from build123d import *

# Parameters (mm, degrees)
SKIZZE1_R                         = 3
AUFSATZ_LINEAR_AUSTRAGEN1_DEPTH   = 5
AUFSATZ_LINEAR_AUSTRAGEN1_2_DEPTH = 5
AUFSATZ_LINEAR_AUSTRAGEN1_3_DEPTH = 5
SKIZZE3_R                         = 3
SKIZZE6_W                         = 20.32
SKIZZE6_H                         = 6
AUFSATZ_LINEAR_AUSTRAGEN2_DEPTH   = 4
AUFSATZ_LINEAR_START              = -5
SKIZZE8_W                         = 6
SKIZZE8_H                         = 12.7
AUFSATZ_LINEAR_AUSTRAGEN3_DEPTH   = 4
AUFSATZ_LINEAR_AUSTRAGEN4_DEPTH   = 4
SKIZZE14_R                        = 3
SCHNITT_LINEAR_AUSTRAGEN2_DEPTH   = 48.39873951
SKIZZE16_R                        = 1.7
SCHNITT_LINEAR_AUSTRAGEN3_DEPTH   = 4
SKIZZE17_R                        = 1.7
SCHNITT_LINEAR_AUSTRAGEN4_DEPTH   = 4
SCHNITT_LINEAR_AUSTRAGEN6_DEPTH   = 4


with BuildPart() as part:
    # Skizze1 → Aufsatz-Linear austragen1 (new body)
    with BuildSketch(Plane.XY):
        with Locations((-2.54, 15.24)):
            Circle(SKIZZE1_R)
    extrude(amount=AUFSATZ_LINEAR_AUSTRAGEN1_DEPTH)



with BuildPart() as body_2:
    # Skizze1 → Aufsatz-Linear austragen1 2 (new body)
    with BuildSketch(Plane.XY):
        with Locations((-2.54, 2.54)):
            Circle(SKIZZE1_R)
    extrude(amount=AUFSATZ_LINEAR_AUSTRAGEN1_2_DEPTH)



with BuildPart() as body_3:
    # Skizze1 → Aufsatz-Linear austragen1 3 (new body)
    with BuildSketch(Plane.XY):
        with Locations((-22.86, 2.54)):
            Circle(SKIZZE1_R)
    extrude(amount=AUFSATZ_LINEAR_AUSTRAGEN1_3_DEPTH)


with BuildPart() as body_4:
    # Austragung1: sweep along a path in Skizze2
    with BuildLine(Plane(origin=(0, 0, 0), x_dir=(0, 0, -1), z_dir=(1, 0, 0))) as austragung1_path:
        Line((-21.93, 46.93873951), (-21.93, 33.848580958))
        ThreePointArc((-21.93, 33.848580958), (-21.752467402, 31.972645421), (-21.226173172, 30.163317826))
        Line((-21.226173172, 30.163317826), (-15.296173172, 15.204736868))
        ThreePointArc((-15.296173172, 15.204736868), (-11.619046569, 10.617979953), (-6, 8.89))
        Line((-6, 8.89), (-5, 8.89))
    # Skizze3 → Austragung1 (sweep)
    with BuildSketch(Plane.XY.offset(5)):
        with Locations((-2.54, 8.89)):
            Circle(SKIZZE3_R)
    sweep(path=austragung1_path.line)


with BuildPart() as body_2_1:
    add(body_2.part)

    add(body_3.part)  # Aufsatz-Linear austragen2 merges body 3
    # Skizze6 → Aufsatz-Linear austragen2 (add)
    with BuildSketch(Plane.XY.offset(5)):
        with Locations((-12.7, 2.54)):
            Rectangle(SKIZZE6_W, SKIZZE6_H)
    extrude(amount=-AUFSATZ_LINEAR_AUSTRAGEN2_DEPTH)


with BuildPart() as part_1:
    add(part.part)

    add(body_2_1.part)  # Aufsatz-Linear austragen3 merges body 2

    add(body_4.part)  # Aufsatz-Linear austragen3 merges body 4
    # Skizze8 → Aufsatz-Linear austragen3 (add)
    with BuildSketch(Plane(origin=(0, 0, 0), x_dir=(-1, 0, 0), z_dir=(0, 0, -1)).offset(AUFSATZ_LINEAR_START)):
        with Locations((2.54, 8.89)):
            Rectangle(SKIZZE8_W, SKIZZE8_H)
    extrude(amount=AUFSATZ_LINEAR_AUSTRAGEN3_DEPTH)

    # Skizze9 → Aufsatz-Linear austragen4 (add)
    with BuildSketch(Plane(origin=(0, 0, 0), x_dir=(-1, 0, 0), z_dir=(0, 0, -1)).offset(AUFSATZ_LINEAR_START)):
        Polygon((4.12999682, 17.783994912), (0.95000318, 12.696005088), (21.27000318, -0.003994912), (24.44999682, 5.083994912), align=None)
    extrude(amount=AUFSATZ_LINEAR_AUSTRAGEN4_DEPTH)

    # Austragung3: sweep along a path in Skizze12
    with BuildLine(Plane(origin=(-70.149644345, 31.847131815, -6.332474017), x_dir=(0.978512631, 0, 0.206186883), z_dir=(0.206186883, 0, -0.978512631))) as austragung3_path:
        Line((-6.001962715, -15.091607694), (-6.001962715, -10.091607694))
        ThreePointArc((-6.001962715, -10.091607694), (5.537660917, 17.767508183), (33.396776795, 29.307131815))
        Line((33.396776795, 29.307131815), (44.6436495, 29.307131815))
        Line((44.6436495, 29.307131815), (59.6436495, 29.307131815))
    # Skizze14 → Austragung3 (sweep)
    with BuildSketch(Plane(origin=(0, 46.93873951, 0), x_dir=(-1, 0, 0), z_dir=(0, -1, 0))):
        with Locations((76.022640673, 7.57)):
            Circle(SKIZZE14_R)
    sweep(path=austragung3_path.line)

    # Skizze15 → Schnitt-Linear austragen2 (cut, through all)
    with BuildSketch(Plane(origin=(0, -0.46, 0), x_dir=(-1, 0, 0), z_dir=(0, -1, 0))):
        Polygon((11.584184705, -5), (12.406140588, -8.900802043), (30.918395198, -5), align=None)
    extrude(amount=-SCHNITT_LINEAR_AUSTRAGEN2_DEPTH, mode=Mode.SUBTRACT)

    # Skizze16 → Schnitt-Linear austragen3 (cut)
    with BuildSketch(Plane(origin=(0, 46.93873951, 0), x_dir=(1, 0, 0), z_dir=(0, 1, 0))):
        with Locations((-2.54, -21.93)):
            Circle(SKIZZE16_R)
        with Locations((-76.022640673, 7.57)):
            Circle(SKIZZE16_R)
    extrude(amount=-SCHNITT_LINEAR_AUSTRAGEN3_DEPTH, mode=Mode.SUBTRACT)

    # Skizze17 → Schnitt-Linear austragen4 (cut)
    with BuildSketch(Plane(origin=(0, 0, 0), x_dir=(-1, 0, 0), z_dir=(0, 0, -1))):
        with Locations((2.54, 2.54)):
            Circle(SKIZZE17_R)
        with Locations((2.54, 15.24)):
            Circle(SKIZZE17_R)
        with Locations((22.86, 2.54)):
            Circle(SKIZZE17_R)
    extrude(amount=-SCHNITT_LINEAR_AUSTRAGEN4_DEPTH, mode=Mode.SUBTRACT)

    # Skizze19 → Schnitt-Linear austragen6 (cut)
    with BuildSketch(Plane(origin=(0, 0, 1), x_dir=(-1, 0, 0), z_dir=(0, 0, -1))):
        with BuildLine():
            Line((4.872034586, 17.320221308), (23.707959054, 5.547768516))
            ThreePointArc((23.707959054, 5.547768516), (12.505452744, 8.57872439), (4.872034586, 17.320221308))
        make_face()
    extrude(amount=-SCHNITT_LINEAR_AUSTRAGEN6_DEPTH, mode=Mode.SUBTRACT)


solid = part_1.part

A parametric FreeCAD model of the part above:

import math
import FreeCAD as App
import Part
import Sketcher
from FreeCAD import Vector

doc = App.newDocument("Part")
params = doc.addObject("Spreadsheet::Sheet", "Params")
for row, (alias, value) in enumerate([
    ("sketch1_diameter", "6 mm"),
    ("pad1_length", "5 mm"),
    ("sketch2_diameter", "6 mm"),
    ("pad2_length", "5 mm"),
    ("sketch3_diameter", "6 mm"),
    ("pad3_length", "5 mm"),
    ("sketch4_diameter", "6 mm"),
    ("sketch5_radius", "10 mm"),
    ("sketch5_height", "1 mm"),
    ("sketch6_height", "6 mm"),
    ("sketch6_width", "20.32 mm"),
    ("pad4_length", "4 mm"),
    ("sketch7_width", "6 mm"),
    ("sketch7_height", "12.7 mm"),
    ("pad5_length", "4 mm"),
    ("sketch8_length", "6 mm"),
    ("pad6_length", "4 mm"),
    ("sketch9_diameter", "6 mm"),
    ("sketch10_height", "5 mm"),
    ("sketch12_diameter", "3.4 mm"),
    ("pocket2_length", "4 mm"),
    ("sketch13_diameter", "3.4 mm"),
    ("pocket3_length", "4 mm"),
    ("sketch14_radius", "20 mm"),
    ("pocket4_length", "4 mm"),
], start=1):
    params.set(f"A{row}", alias)
    params.set(f"B{row}", "=" + value)
    params.setAlias(f"B{row}", alias)

body = doc.addObject("PartDesign::Body", "Body")

sketch1 = body.newObject("Sketcher::SketchObject", "Sketch")
sketch1.AttachmentSupport = (doc.getObject("XY_Plane"), [""])
sketch1.MapMode = "FlatFace"
sketch1.addGeometry(Part.Circle(Vector(-2.54, 15.24, 0), Vector(0, 0, 1), 3), False)
sketch1.addConstraint([
    Sketcher.Constraint("Diameter", 0, 6.0),
    Sketcher.Constraint("DistanceX", 0, 3, -1, 1, 2.54),
    Sketcher.Constraint("DistanceY", -1, 1, 0, 3, 15.24),
])
sketch1.setExpression("Constraints[0]", "Params.sketch1_diameter")
pad1 = body.newObject("PartDesign::Pad", "Pad")
pad1.Profile = sketch1
pad1.setExpression("Length", "Params.pad1_length")
body2 = doc.addObject("PartDesign::Body", "Body001")

sketch2 = body2.newObject("Sketcher::SketchObject", "Sketch001")
sketch2.AttachmentSupport = (doc.getObject("XY_Plane001"), [""])
sketch2.MapMode = "FlatFace"
sketch2.addGeometry(Part.Circle(Vector(-2.54, 2.54, 0), Vector(0, 0, 1), 3), False)
sketch2.addConstraint([
    Sketcher.Constraint("Diameter", 0, 6.0),
    Sketcher.Constraint("DistanceX", 0, 3, -1, 1, 2.54),
    Sketcher.Constraint("DistanceY", -1, 1, 0, 3, 2.54),
])
sketch2.setExpression("Constraints[0]", "Params.sketch2_diameter")
pad2 = body2.newObject("PartDesign::Pad", "Pad001")
pad2.Profile = sketch2
pad2.setExpression("Length", "Params.pad2_length")
body3 = doc.addObject("PartDesign::Body", "Body002")

sketch3 = body3.newObject("Sketcher::SketchObject", "Sketch002")
sketch3.AttachmentSupport = (doc.getObject("XY_Plane002"), [""])
sketch3.MapMode = "FlatFace"
sketch3.addGeometry(Part.Circle(Vector(-22.86, 2.54, 0), Vector(0, 0, 1), 3), False)
sketch3.addConstraint([
    Sketcher.Constraint("Diameter", 0, 6.0),
    Sketcher.Constraint("DistanceX", 0, 3, -1, 1, 22.86),
    Sketcher.Constraint("DistanceY", -1, 1, 0, 3, 2.54),
])
sketch3.setExpression("Constraints[0]", "Params.sketch3_diameter")
pad3 = body3.newObject("PartDesign::Pad", "Pad002")
pad3.Profile = sketch3
pad3.setExpression("Length", "Params.pad3_length")
body4 = doc.addObject("PartDesign::Body", "Body003")

sketch4 = body4.newObject("Sketcher::SketchObject", "Sketch003")
sketch4.AttachmentSupport = (doc.getObject("XY_Plane003"), [""])
sketch4.MapMode = "FlatFace"
sketch4.AttachmentOffset = App.Placement(Vector(0, 0, 5), App.Rotation())
sketch4.addGeometry(Part.Circle(Vector(-2.54, 8.89, 0), Vector(0, 0, 1), 3), False)
sketch4.addConstraint([
    Sketcher.Constraint("Diameter", 0, 6.0),
    Sketcher.Constraint("DistanceX", 0, 3, -1, 1, 2.54),
    Sketcher.Constraint("DistanceY", -1, 1, 0, 3, 8.89),
])
sketch4.setExpression("Constraints[0]", "Params.sketch4_diameter")

sketch5 = body4.newObject("Sketcher::SketchObject", "Sketch004")
sketch5.AttachmentSupport = (doc.getObject("YZ_Plane003"), [""])
sketch5.MapMode = "FlatFace"
sketch5.addGeometry([
    Part.LineSegment(Vector(46.93874, 21.93, 0), Vector(33.848581, 21.93, 0)),
    Part.ArcOfCircle(Part.Circle(Vector(33.848581, 11.93, 0), Vector(0, 0, 1), 10), math.radians(90), math.radians(111.62476)),
    Part.LineSegment(Vector(30.163318, 21.226173, 0), Vector(15.204737, 15.296173, 0)),
    Part.ArcOfCircle(Part.Circle(Vector(18.89, 6, 0), Vector(0, 0, 1), 10), math.radians(111.62476), math.radians(180)),
    Part.LineSegment(Vector(8.89, 6, 0), Vector(8.89, 5, 0)),
], False)
sketch5.addConstraint([
    Sketcher.Constraint("Tangent", 0, 2, 1, 1),
    Sketcher.Constraint("Tangent", 1, 2, 2, 1),
    Sketcher.Constraint("Tangent", 2, 2, 3, 1),
    Sketcher.Constraint("Tangent", 3, 2, 4, 1),
    Sketcher.Constraint("Horizontal", 0),
    Sketcher.Constraint("Vertical", 4),
    Sketcher.Constraint("Equal", 1, 3),
    Sketcher.Constraint("Radius", 1, 10.0),
    Sketcher.Constraint("DistanceY", 4, 2, 4, 1, 1.0),
    Sketcher.Constraint("DistanceY", -1, 1, 3, 3, 6.0),
    Sketcher.Constraint("DistanceY", -1, 1, 1, 3, 11.93),
    Sketcher.Constraint("DistanceX", -1, 1, 3, 3, 18.89),
    Sketcher.Constraint("DistanceX", 0, 2, 0, 1, 13.090159),
    Sketcher.Constraint("DistanceX", -1, 1, 1, 3, 33.848581),
])
sketch5.setExpression("Constraints[7]", "Params.sketch5_radius")
sketch5.setExpression("Constraints[8]", "Params.sketch5_height")
doc.recompute()

additivepipe = body4.newObject("PartDesign::AdditivePipe", "AdditivePipe")
additivepipe.Profile = sketch4
additivepipe.Spine = (sketch5, ["Edge1", "Edge2", "Edge3", "Edge4", "Edge5"])
body2.AllowCompound = True
doc.recompute()

boolean = body2.newObject("PartDesign::Boolean", "Boolean")
boolean.Type = "Fuse"
boolean.addObjects([body3])

sketch6 = body2.newObject("Sketcher::SketchObject", "Sketch005")
sketch6.AttachmentSupport = (doc.getObject("XY_Plane001"), [""])
sketch6.MapMode = "FlatFace"
sketch6.AttachmentOffset = App.Placement(Vector(0, 0, 5), App.Rotation())
sketch6.addGeometry([
    Part.LineSegment(Vector(-22.86, 5.54, 0), Vector(-22.86, -0.46, 0)),
    Part.LineSegment(Vector(-22.86, -0.46, 0), Vector(-2.54, -0.46, 0)),
    Part.LineSegment(Vector(-2.54, -0.46, 0), Vector(-2.54, 5.54, 0)),
    Part.LineSegment(Vector(-2.54, 5.54, 0), Vector(-22.86, 5.54, 0)),
], False)
sketch6.addConstraint([
    Sketcher.Constraint("Coincident", 0, 2, 1, 1),
    Sketcher.Constraint("Coincident", 1, 2, 2, 1),
    Sketcher.Constraint("Coincident", 2, 2, 3, 1),
    Sketcher.Constraint("Coincident", 3, 2, 0, 1),
    Sketcher.Constraint("Vertical", 0),
    Sketcher.Constraint("Horizontal", 1),
    Sketcher.Constraint("Vertical", 2),
    Sketcher.Constraint("Horizontal", 3),
    Sketcher.Constraint("DistanceY", 0, 2, 0, 1, 6.0),
    Sketcher.Constraint("DistanceX", 1, 1, 1, 2, 20.32),
    Sketcher.Constraint("DistanceX", 0, 2, -1, 1, 22.86),
    Sketcher.Constraint("DistanceY", 0, 2, -1, 1, 0.46),
])
sketch6.setExpression("Constraints[8]", "Params.sketch6_height")
sketch6.setExpression("Constraints[9]", "Params.sketch6_width")
pad4 = body2.newObject("PartDesign::Pad", "Pad003")
pad4.Profile = sketch6
pad4.setExpression("Length", "Params.pad4_length")
pad4.Reversed = True
body.AllowCompound = True
doc.recompute()

boolean2 = body.newObject("PartDesign::Boolean", "Boolean001")
boolean2.Type = "Fuse"
boolean2.addObjects([body2])
doc.recompute()

boolean3 = body.newObject("PartDesign::Boolean", "Boolean002")
boolean3.Type = "Fuse"
boolean3.addObjects([body4])

sketch7 = body.newObject("Sketcher::SketchObject", "Sketch006")
sketch7.AttachmentSupport = (doc.getObject("XY_Plane"), [""])
sketch7.MapMode = "FlatFace"
sketch7.AttachmentOffset = App.Placement(Vector(0, 0, 5), App.Rotation())
sketch7.addGeometry([
    Part.LineSegment(Vector(0.46, 15.24, 0), Vector(0.46, 2.54, 0)),
    Part.LineSegment(Vector(0.46, 2.54, 0), Vector(-5.54, 2.54, 0)),
    Part.LineSegment(Vector(-5.54, 2.54, 0), Vector(-5.54, 15.24, 0)),
    Part.LineSegment(Vector(-5.54, 15.24, 0), Vector(0.46, 15.24, 0)),
], False)
sketch7.addConstraint([
    Sketcher.Constraint("Coincident", 0, 2, 1, 1),
    Sketcher.Constraint("Coincident", 1, 2, 2, 1),
    Sketcher.Constraint("Coincident", 2, 2, 3, 1),
    Sketcher.Constraint("Coincident", 3, 2, 0, 1),
    Sketcher.Constraint("Vertical", 0),
    Sketcher.Constraint("Horizontal", 1),
    Sketcher.Constraint("Vertical", 2),
    Sketcher.Constraint("Horizontal", 3),
    Sketcher.Constraint("DistanceX", 1, 2, 1, 1, 6.0),
    Sketcher.Constraint("DistanceY", 0, 2, 0, 1, 12.7),
    Sketcher.Constraint("DistanceX", -1, 1, 0, 2, 0.46),
    Sketcher.Constraint("DistanceY", -1, 1, 0, 2, 2.54),
])
sketch7.setExpression("Constraints[8]", "Params.sketch7_width")
sketch7.setExpression("Constraints[9]", "Params.sketch7_height")
pad5 = body.newObject("PartDesign::Pad", "Pad004")
pad5.Profile = sketch7
pad5.setExpression("Length", "Params.pad5_length")
pad5.Reversed = True

sketch8 = body.newObject("Sketcher::SketchObject", "Sketch007")
sketch8.AttachmentSupport = (doc.getObject("XY_Plane"), [""])
sketch8.MapMode = "FlatFace"
sketch8.AttachmentOffset = App.Placement(Vector(0, 0, 5), App.Rotation())
sketch8.addGeometry([
    Part.LineSegment(Vector(-4.129997, 17.783995, 0), Vector(-0.950003, 12.696005, 0)),
    Part.LineSegment(Vector(-0.950003, 12.696005, 0), Vector(-21.270003, -0.003995, 0)),
    Part.LineSegment(Vector(-21.270003, -0.003995, 0), Vector(-24.449997, 5.083995, 0)),
    Part.LineSegment(Vector(-24.449997, 5.083995, 0), Vector(-4.129997, 17.783995, 0)),
], False)
sketch8.addConstraint([
    Sketcher.Constraint("Coincident", 0, 2, 1, 1),
    Sketcher.Constraint("Coincident", 1, 2, 2, 1),
    Sketcher.Constraint("Coincident", 2, 2, 3, 1),
    Sketcher.Constraint("Coincident", 3, 2, 0, 1),
    Sketcher.Constraint("Perpendicular", 0, 1),
    Sketcher.Constraint("Perpendicular", 1, 2),
    Sketcher.Constraint("Perpendicular", 2, 3),
    Sketcher.Constraint("Distance", 0, 6.0),
    Sketcher.Constraint("DistanceY", 1, 2, 0, 2, 12.7),
    Sketcher.Constraint("DistanceX", 1, 2, 0, 2, 20.32),
    Sketcher.Constraint("DistanceX", 0, 2, -1, 1, 0.950003),
    Sketcher.Constraint("DistanceY", -1, 1, 0, 2, 12.696005),
])
sketch8.setExpression("Constraints[7]", "Params.sketch8_length")
pad6 = body.newObject("PartDesign::Pad", "Pad005")
pad6.Profile = sketch8
pad6.setExpression("Length", "Params.pad6_length")
pad6.Reversed = True

sketch9 = body.newObject("Sketcher::SketchObject", "Sketch008")
sketch9.AttachmentSupport = (doc.getObject("XZ_Plane"), [""])
sketch9.MapMode = "FlatFace"
sketch9.AttachmentOffset = App.Placement(Vector(0, 0, -46.93874), App.Rotation())
sketch9.addGeometry(Part.Circle(Vector(-76.022641, -7.57, 0), Vector(0, 0, 1), 3), False)
sketch9.addConstraint([
    Sketcher.Constraint("Diameter", 0, 6.0),
    Sketcher.Constraint("DistanceY", 0, 3, -1, 1, 7.57),
    Sketcher.Constraint("DistanceX", 0, 3, -1, 1, 76.022641),
])
sketch9.setExpression("Constraints[0]", "Params.sketch9_diameter")

sketch10 = body.newObject("Sketcher::SketchObject", "Sketch009")
sketch10.Placement = App.Placement(Vector(-1.704656, 0, 8.089883), App.Rotation(Vector(0.978512631, 0, 0.206186883), Vector(0, 1, 0), Vector(-0.206186883, 0, 0.978512631), "ZXY"))
sketch10.addGeometry([
    Part.LineSegment(Vector(-75.949949, 46.938739, 0), Vector(-75.949949, 41.938739, 0)),
    Part.ArcOfCircle(Part.Circle(Vector(-36.551209, 41.938739, 0), Vector(0, 0, 1), 39.39874), math.radians(180), math.radians(270)),
    Part.LineSegment(Vector(-36.551209, 2.54, 0), Vector(-10.304337, 2.54, 0)),
], False)
sketch10.addConstraint([
    Sketcher.Constraint("Tangent", 0, 2, 1, 1),
    Sketcher.Constraint("Tangent", 1, 2, 2, 1),
    Sketcher.Constraint("Vertical", 0),
    Sketcher.Constraint("Horizontal", 2),
    Sketcher.Constraint("DistanceY", 0, 2, 0, 1, 5.0),
    Sketcher.Constraint("DistanceY", -1, 1, 1, 2, 2.54),
    Sketcher.Constraint("Radius", 1, 39.39874),
    Sketcher.Constraint("DistanceX", 2, 1, 2, 2, 26.246873),
    Sketcher.Constraint("DistanceX", 1, 3, -1, 1, 36.551209),
])
sketch10.setExpression("Constraints[4]", "Params.sketch10_height")
doc.recompute()

additivepipe2 = body.newObject("PartDesign::AdditivePipe", "AdditivePipe001")
additivepipe2.Profile = sketch9
additivepipe2.Spine = (sketch10, ["Edge1", "Edge2", "Edge3"])

sketch11 = body.newObject("Sketcher::SketchObject", "Sketch010")
sketch11.AttachmentSupport = (doc.getObject("XZ_Plane"), [""])
sketch11.MapMode = "FlatFace"
sketch11.AttachmentOffset = App.Placement(Vector(0, 0, 0.46), App.Rotation())
sketch11.addGeometry([
    Part.LineSegment(Vector(-11.584185, 5, 0), Vector(-12.406141, 8.900802, 0)),
    Part.LineSegment(Vector(-12.406141, 8.900802, 0), Vector(-30.918395, 5, 0)),
    Part.LineSegment(Vector(-30.918395, 5, 0), Vector(-11.584185, 5, 0)),
], False)
sketch11.addConstraint([
    Sketcher.Constraint("Coincident", 0, 2, 1, 1),
    Sketcher.Constraint("Coincident", 1, 2, 2, 1),
    Sketcher.Constraint("Coincident", 2, 2, 0, 1),
    Sketcher.Constraint("Horizontal", 2),
    Sketcher.Constraint("Perpendicular", 0, 1),
    Sketcher.Constraint("DistanceY", -1, 1, 1, 2, 5.0),
    Sketcher.Constraint("DistanceX", 2, 1, 2, 2, 19.33421),
    Sketcher.Constraint("Distance", 0, 3.986461),
    Sketcher.Constraint("DistanceX", 0, 2, -1, 1, 12.406141),
])
pocket1 = body.newObject("PartDesign::Pocket", "Pocket")
pocket1.Profile = sketch11
pocket1.Type = "ThroughAll"

sketch12 = body.newObject("Sketcher::SketchObject", "Sketch011")
sketch12.AttachmentSupport = (doc.getObject("XZ_Plane"), [""])
sketch12.MapMode = "FlatFace"
sketch12.AttachmentOffset = App.Placement(Vector(0, 0, -46.93874), App.Rotation())
sketch12.addGeometry([
    Part.Circle(Vector(-2.54, 21.93, 0), Vector(0, 0, 1), 1.7),
    Part.Circle(Vector(-76.022641, -7.57, 0), Vector(0, 0, 1), 1.7),
], False)
sketch12.addConstraint([
    Sketcher.Constraint("Equal", 0, 1),
    Sketcher.Constraint("Diameter", 0, 3.4),
    Sketcher.Constraint("DistanceY", 1, 3, 0, 3, 29.5),
    Sketcher.Constraint("DistanceX", 0, 3, -1, 1, 2.54),
    Sketcher.Constraint("DistanceY", -1, 1, 0, 3, 21.93),
    Sketcher.Constraint("DistanceX", 1, 3, -1, 1, 76.022641),
])
sketch12.setExpression("Constraints[1]", "Params.sketch12_diameter")
pocket2 = body.newObject("PartDesign::Pocket", "Pocket001")
pocket2.Profile = sketch12
pocket2.setExpression("Length", "Params.pocket2_length")
pocket2.Reversed = True

sketch13 = body.newObject("Sketcher::SketchObject", "Sketch012")
sketch13.AttachmentSupport = (doc.getObject("XY_Plane"), [""])
sketch13.MapMode = "FlatFace"
sketch13.addGeometry([
    Part.Circle(Vector(-2.54, 2.54, 0), Vector(0, 0, 1), 1.7),
    Part.Circle(Vector(-2.54, 15.24, 0), Vector(0, 0, 1), 1.7),
    Part.Circle(Vector(-22.86, 2.54, 0), Vector(0, 0, 1), 1.7),
], False)
sketch13.addConstraint([
    Sketcher.Constraint("Equal", 0, 1),
    Sketcher.Constraint("Equal", 1, 2),
    Sketcher.Constraint("Horizontal", 0, 3, 2, 3),
    Sketcher.Constraint("Vertical", 0, 3, 1, 3),
    Sketcher.Constraint("Diameter", 0, 3.4),
    Sketcher.Constraint("DistanceY", 0, 3, 1, 3, 12.7),
    Sketcher.Constraint("DistanceX", 0, 3, -1, 1, 2.54),
    Sketcher.Constraint("DistanceY", -1, 1, 0, 3, 2.54),
    Sketcher.Constraint("DistanceX", 2, 3, -1, 1, 22.86),
])
sketch13.setExpression("Constraints[4]", "Params.sketch13_diameter")
pocket3 = body.newObject("PartDesign::Pocket", "Pocket002")
pocket3.Profile = sketch13
pocket3.setExpression("Length", "Params.pocket3_length")
pocket3.Reversed = True

sketch14 = body.newObject("Sketcher::SketchObject", "Sketch013")
sketch14.AttachmentSupport = (doc.getObject("XY_Plane"), [""])
sketch14.MapMode = "FlatFace"
sketch14.AttachmentOffset = App.Placement(Vector(0, 0, 1), App.Rotation())
sketch14.addGeometry([
    Part.LineSegment(Vector(-23.707959, 5.547769, 0), Vector(-4.872035, 17.320221, 0)),
    Part.ArcOfCircle(Part.Circle(Vector(-23.105432, 25.53869, 0), Vector(0, 0, 1), 20), math.radians(-91.726375), math.radians(-24.262858)),
], False)
sketch14.addConstraint([
    Sketcher.Constraint("Coincident", 0, 1, 1, 1),
    Sketcher.Constraint("Coincident", 1, 2, 0, 2),
    Sketcher.Constraint("Radius", 1, 20.0),
    Sketcher.Constraint("Distance", 0, 22.21222),
    Sketcher.Constraint("DistanceX", 1, 3, -1, 1, 23.105432),
    Sketcher.Constraint("DistanceY", -1, 1, 1, 3, 25.53869),
    Sketcher.Constraint("DistanceX", 0, 1, -1, 1, 23.707959),
])
sketch14.setExpression("Constraints[2]", "Params.sketch14_radius")
pocket4 = body.newObject("PartDesign::Pocket", "Pocket003")
pocket4.Profile = sketch14
pocket4.setExpression("Length", "Params.pocket4_length")
pocket4.Reversed = True

doc.recompute()
